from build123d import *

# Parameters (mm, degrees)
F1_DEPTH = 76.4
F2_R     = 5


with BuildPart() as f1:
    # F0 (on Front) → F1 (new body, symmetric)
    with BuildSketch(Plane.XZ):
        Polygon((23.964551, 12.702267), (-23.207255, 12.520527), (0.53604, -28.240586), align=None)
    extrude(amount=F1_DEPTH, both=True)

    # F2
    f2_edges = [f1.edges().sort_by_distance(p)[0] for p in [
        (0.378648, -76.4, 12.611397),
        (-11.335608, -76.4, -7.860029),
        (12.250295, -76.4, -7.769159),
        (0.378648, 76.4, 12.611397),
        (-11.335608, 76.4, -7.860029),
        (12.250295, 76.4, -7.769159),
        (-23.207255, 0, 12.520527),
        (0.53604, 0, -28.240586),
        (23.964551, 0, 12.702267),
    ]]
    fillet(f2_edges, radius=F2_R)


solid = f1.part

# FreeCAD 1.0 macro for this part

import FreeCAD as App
import Part
import Sketcher
Q = App.Units.Quantity

doc = App.newDocument("Part")
body = doc.addObject("PartDesign::Body", "Body")

sketch1 = body.newObject("Sketcher::SketchObject", "Sketch")
sketch1.AttachmentSupport = (doc.getObject("XZ_Plane"), [""])
sketch1.MapMode = "FlatFace"
sketch1.addGeometry([
    Part.LineSegment(App.Vector(24, 13, 0), App.Vector(-23, 13, 0)),
    Part.LineSegment(App.Vector(-23, 13, 0), App.Vector(1, -28, 0)),
    Part.LineSegment(App.Vector(1, -28, 0), App.Vector(24, 13, 0)),
], False)
sketch1.addConstraint([
    Sketcher.Constraint("Coincident", 0, 2, 1, 1),
    Sketcher.Constraint("Coincident", 1, 2, 2, 1),
    Sketcher.Constraint("Coincident", 2, 2, 0, 1),
    Sketcher.Constraint("Equal", 0, 1),
    Sketcher.Constraint("Equal", 1, 2),
    Sketcher.Constraint("DistanceX", -1, 1, 1, 2, Q("0.53604 mm")),
    Sketcher.Constraint("DistanceX", -1, 1, 2, 2, Q("23.964551 mm")),
    Sketcher.Constraint("DistanceY", 0, 2, 2, 2, Q("0.18174 mm")),
    Sketcher.Constraint("DistanceY", -1, 1, 0, 2, Q("12.520527 mm")),
])
pad1 = body.newObject("PartDesign::Pad", "Pad")
pad1.Profile = sketch1
pad1.Length = 152.8
pad1.Midplane = True
doc.recompute()

fillet = body.newObject("PartDesign::Fillet", "Fillet")
fillet.Base = (pad1, ["Edge1"])
fillet.UseAllEdges = True
fillet.Radius = 5

doc.recompute()
